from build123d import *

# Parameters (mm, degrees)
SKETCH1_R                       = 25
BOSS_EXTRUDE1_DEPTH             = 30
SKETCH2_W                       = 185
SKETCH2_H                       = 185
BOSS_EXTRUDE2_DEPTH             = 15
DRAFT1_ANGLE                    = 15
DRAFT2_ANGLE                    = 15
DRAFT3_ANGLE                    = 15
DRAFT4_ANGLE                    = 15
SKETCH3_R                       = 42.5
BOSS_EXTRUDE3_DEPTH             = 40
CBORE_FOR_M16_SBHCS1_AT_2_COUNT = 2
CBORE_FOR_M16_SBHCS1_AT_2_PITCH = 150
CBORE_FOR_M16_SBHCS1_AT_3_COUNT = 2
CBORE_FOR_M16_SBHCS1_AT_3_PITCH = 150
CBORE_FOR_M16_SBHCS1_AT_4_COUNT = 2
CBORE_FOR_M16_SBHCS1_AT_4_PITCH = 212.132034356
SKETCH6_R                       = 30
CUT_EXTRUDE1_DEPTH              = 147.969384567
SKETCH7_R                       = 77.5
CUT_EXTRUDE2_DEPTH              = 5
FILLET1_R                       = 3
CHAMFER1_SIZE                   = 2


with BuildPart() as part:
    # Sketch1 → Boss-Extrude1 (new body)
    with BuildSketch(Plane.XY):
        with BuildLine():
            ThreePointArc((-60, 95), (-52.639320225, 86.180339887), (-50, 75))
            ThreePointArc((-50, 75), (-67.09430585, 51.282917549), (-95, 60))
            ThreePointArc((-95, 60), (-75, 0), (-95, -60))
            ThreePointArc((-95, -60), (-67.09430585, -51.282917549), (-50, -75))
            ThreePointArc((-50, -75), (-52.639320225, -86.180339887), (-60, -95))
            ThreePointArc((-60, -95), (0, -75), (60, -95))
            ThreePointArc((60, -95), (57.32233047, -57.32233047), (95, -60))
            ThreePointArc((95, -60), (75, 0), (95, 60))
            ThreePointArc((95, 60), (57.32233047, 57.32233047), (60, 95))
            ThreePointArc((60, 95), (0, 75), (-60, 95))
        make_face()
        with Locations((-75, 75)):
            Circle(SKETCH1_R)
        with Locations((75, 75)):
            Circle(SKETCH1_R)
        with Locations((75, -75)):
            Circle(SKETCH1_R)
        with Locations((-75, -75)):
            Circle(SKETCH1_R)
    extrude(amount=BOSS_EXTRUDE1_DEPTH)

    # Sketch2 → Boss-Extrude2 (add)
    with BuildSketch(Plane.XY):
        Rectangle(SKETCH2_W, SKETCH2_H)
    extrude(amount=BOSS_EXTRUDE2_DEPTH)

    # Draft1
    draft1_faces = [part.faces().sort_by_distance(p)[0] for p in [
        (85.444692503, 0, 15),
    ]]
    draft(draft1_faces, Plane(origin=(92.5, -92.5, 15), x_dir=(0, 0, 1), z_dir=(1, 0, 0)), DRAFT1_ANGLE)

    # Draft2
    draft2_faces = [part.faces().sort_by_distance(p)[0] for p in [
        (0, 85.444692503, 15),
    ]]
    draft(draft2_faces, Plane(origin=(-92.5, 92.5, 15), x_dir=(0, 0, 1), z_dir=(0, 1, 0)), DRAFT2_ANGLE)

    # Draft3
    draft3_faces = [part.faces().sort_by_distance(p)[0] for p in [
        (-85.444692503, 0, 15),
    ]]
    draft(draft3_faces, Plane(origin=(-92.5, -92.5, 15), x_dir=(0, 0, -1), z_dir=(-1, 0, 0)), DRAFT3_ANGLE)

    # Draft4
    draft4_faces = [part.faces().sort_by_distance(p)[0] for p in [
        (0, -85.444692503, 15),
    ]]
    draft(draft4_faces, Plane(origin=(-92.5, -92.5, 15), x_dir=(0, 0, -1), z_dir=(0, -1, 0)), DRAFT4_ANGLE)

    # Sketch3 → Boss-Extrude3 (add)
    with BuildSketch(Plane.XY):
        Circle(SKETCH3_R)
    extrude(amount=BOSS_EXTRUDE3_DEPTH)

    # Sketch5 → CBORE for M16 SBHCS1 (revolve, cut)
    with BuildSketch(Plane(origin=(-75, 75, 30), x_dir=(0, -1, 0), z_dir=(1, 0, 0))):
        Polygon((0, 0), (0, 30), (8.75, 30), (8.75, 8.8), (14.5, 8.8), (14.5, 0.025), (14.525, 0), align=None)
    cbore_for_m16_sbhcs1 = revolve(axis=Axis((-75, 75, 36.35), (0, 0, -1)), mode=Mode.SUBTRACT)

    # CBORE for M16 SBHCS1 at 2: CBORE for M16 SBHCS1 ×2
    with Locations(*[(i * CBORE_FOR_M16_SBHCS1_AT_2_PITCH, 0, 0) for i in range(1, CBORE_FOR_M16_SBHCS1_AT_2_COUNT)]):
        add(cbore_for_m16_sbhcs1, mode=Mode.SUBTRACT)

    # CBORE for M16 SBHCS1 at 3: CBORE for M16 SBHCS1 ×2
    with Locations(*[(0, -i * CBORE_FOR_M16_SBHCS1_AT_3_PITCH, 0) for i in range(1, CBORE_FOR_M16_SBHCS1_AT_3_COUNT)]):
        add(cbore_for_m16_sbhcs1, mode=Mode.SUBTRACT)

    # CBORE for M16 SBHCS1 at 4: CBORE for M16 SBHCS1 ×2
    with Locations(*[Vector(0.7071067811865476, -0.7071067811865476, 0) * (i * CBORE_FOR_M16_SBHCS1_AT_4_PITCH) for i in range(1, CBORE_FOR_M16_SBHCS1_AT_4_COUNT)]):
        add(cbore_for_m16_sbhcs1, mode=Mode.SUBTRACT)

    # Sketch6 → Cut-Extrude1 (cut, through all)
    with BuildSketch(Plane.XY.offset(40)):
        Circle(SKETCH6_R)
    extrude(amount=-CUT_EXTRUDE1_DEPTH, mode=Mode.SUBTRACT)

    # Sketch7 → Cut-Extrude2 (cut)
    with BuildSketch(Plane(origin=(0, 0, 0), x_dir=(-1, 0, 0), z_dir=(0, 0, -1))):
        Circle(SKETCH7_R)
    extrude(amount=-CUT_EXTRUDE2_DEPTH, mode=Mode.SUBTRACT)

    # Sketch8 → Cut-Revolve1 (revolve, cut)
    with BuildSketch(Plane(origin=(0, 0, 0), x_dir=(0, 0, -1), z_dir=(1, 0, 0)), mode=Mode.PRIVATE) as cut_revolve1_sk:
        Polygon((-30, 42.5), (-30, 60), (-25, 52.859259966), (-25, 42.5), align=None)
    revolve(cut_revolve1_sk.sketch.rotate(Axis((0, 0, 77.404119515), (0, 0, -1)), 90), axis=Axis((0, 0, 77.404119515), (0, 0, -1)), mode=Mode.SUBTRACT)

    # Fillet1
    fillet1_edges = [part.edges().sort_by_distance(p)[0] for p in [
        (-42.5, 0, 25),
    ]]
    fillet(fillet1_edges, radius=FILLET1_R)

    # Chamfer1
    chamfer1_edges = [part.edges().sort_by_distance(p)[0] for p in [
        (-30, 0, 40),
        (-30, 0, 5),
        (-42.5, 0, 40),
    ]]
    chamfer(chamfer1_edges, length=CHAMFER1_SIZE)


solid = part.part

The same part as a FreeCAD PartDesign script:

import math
import FreeCAD as App
import Part
import Sketcher

V = App.Vector
Q = App.Units.Quantity


def edges_at(feature, points):
    """Names of the edges that pass closest to the given points."""
    edges = feature.Shape.Edges
    near = lambda p: min(range(len(edges)), key=lambda i: edges[i].distToShape(Part.Vertex(*p))[0])
    return sorted({f"Edge{near(p) + 1}" for p in points})


def faces_at(feature, points):
    """Names of the faces that lie closest to the given points."""
    faces = feature.Shape.Faces
    near = lambda p: min(range(len(faces)), key=lambda i: faces[i].distToShape(Part.Vertex(*p))[0])
    return sorted({f"Face{near(p) + 1}" for p in points})


def add_polygon(sketch, points):
    """Adds a closed chain of lines whose ends are joined by coincident constraints."""
    first, n = sketch.GeometryCount, len(points)
    for a, b in zip(points, points[1:] + points[:1]):
        sketch.addGeometry(Part.LineSegment(App.Vector(*a, 0), App.Vector(*b, 0)), False)
    for i in range(n):
        sketch.addConstraint(Sketcher.Constraint("Coincident", first + i, 2, first + (i + 1) % n, 1))

doc = App.newDocument("Part")
body = doc.addObject("PartDesign::Body", "Body")

sketch1 = body.newObject("Sketcher::SketchObject", "Sketch")
sketch1.AttachmentSupport = (doc.getObject("XY_Plane"), [""])
sketch1.MapMode = "FlatFace"
sketch1.addGeometry(Part.ArcOfCircle(Part.Circle(V(-175, 0, 0), V(0, 0, 1), 100), math.radians(-37), math.radians(37)), False)
sketch1.addGeometry(Part.ArcOfCircle(Part.Circle(V(-75, -75, 0), V(0, 0, 1), 25), math.radians(143), math.radians(307)), False)
sketch1.addGeometry(Part.ArcOfCircle(Part.Circle(V(0, -175, 0), V(0, 0, 1), 100), math.radians(53), math.radians(127)), False)
sketch1.addGeometry(Part.ArcOfCircle(Part.Circle(V(75, -75, 0), V(0, 0, 1), 25), math.radians(-127), math.radians(37)), False)
sketch1.addGeometry(Part.ArcOfCircle(Part.Circle(V(175, 0, 0), V(0, 0, 1), 100), math.radians(143), math.radians(217)), False)
sketch1.addGeometry(Part.ArcOfCircle(Part.Circle(V(75, 75, 0), V(0, 0, 1), 25), math.radians(-37), math.radians(127)), False)
sketch1.addGeometry(Part.ArcOfCircle(Part.Circle(V(0, 175, 0), V(0, 0, 1), 100), math.radians(-127), math.radians(-53)), False)
sketch1.addGeometry(Part.ArcOfCircle(Part.Circle(V(-75, 75, 0), V(0, 0, 1), 25), math.radians(53), math.radians(217)), False)
sketch1.addConstraint(Sketcher.Constraint("Tangent", 0, 1, 1, 1))
sketch1.addConstraint(Sketcher.Constraint("Tangent", 1, 2, 2, 2))
sketch1.addConstraint(Sketcher.Constraint("Tangent", 2, 1, 3, 1))
sketch1.addConstraint(Sketcher.Constraint("Tangent", 3, 2, 4, 2))
sketch1.addConstraint(Sketcher.Constraint("Tangent", 4, 1, 5, 1))
sketch1.addConstraint(Sketcher.Constraint("Tangent", 5, 2, 6, 2))
sketch1.addConstraint(Sketcher.Constraint("Tangent", 6, 1, 7, 1))
sketch1.addConstraint(Sketcher.Constraint("Tangent", 7, 2, 0, 2))
sketch1.addConstraint(Sketcher.Constraint("Equal", 0, 2))
sketch1.addConstraint(Sketcher.Constraint("Equal", 1, 3))
sketch1.addConstraint(Sketcher.Constraint("Equal", 2, 4))
sketch1.addConstraint(Sketcher.Constraint("Equal", 3, 5))
sketch1.addConstraint(Sketcher.Constraint("Equal", 4, 6))
sketch1.addConstraint(Sketcher.Constraint("Equal", 5, 7))
sketch1.addConstraint(Sketcher.Constraint("Symmetric", 0, 3, 4, 3, -1, 1))
sketch1.addConstraint(Sketcher.Constraint("Symmetric", 2, 3, 6, 3, -1, 1))
sketch1.addConstraint(Sketcher.Constraint("Symmetric", 1, 3, 3, 3, -2))
sketch1.addConstraint(Sketcher.Constraint("Radius", 0, 100.0))
sketch1.addConstraint(Sketcher.Constraint("Radius", 1, 25.0))
sketch1.addConstraint(Sketcher.Constraint("DistanceX", 0, 3, -1, 1, 175.0))
sketch1.addConstraint(Sketcher.Constraint("DistanceX", 1, 3, -1, 1, 75.0))
pad1 = body.newObject("PartDesign::Pad", "Pad")
pad1.Profile = sketch1
pad1.Length = 30

sketch2 = body.newObject("Sketcher::SketchObject", "Sketch001")
sketch2.AttachmentSupport = (doc.getObject("XY_Plane"), [""])
sketch2.MapMode = "FlatFace"
add_polygon(sketch2, [(-92, 92), (-92, -92), (92, -92), (92, 92)])
sketch2.addConstraint(Sketcher.Constraint("Vertical", 0))
sketch2.addConstraint(Sketcher.Constraint("Horizontal", 1))
sketch2.addConstraint(Sketcher.Constraint("Vertical", 2))
sketch2.addConstraint(Sketcher.Constraint("Horizontal", 3))
sketch2.addConstraint(Sketcher.Constraint("Symmetric", 0, 2, 2, 2, -1, 1))
sketch2.addConstraint(Sketcher.Constraint("Equal", 3, 0))
sketch2.addConstraint(Sketcher.Constraint("DistanceX", 1, 1, 1, 2, 185.0))
pad2 = body.newObject("PartDesign::Pad", "Pad001")
pad2.Profile = sketch2
pad2.Length = 15
doc.recompute()

datumplane = body.newObject("PartDesign::Plane", "DatumPlane")
datumplane.AttachmentSupport = (doc.getObject("YZ_Plane"), [""])
datumplane.MapMode = "FlatFace"
datumplane.AttachmentOffset = App.Placement(V(0, 0, 92.5), App.Rotation())
draft = body.newObject("PartDesign::Draft", "Draft")
draft.Base = (pad2, faces_at(pad2, [(83.75, 0, 15)]))
draft.NeutralPlane = (datumplane, [""])
draft.Angle = 15
draft.Reversed = False
doc.recompute()

datumplane2 = body.newObject("PartDesign::Plane", "DatumPlane001")
datumplane2.AttachmentSupport = (doc.getObject("XZ_Plane"), [""])
datumplane2.MapMode = "FlatFace"
datumplane2.AttachmentOffset = App.Placement(V(0, 0, -92.5), App.Rotation())
draft2 = body.newObject("PartDesign::Draft", "Draft001")
draft2.Base = (draft, faces_at(draft, [(0, 83.75, 15)]))
draft2.NeutralPlane = (datumplane2, [""])
draft2.Angle = 15
draft2.Reversed = True
doc.recompute()

datumplane3 = body.newObject("PartDesign::Plane", "DatumPlane002")
datumplane3.AttachmentSupport = (doc.getObject("YZ_Plane"), [""])
datumplane3.MapMode = "FlatFace"
datumplane3.AttachmentOffset = App.Placement(V(0, 0, -92.5), App.Rotation())
draft3 = body.newObject("PartDesign::Draft", "Draft002")
draft3.Base = (draft2, faces_at(draft2, [(-83.75, 0, 15)]))
draft3.NeutralPlane = (datumplane3, [""])
draft3.Angle = 15
draft3.Reversed = True
doc.recompute()

datumplane4 = body.newObject("PartDesign::Plane", "DatumPlane003")
datumplane4.AttachmentSupport = (doc.getObject("XZ_Plane"), [""])
datumplane4.MapMode = "FlatFace"
datumplane4.AttachmentOffset = App.Placement(V(0, 0, 92.5), App.Rotation())
draft4 = body.newObject("PartDesign::Draft", "Draft003")
draft4.Base = (draft3, faces_at(draft3, [(0, -83.75, 15)]))
draft4.NeutralPlane = (datumplane4, [""])
draft4.Angle = 15
draft4.Reversed = False

sketch3 = body.newObject("Sketcher::SketchObject", "Sketch002")
sketch3.AttachmentSupport = (doc.getObject("XY_Plane"), [""])
sketch3.MapMode = "FlatFace"
sketch3.addGeometry(Part.Circle(V(0, 0, 0), V(0, 0, 1), 42), False)
sketch3.addConstraint(Sketcher.Constraint("Coincident", 0, 3, -1, 1))
sketch3.addConstraint(Sketcher.Constraint("Diameter", 0, 85.0))
pad3 = body.newObject("PartDesign::Pad", "Pad002")
pad3.Profile = sketch3
pad3.Length = 40

sketch4 = body.newObject("Sketcher::SketchObject", "Sketch003")
sketch4.AttachmentSupport = (doc.getObject("YZ_Plane"), [""])
sketch4.MapMode = "FlatFace"
sketch4.AttachmentOffset = App.Placement(V(0, 0, -75), App.Rotation())
add_polygon(sketch4, [(75, 0), (75, 30), (60.475, 30), (60.5, 29.975), (60.5, 21.2), (66.25, 21.2), (66.25, 0)])
sketch4.addGeometry(Part.LineSegment(V(75, 30, 0), V(75, 0, 0)), True)
sketch4.addConstraint(Sketcher.Constraint("Vertical", 0))
sketch4.addConstraint(Sketcher.Constraint("Horizontal", 1))
sketch4.addConstraint(Sketcher.Constraint("Vertical", 3))
sketch4.addConstraint(Sketcher.Constraint("Horizontal", 4))
sketch4.addConstraint(Sketcher.Constraint("Vertical", 5))
sketch4.addConstraint(Sketcher.Constraint("Horizontal", 6))
sketch4.addConstraint(Sketcher.Constraint("Vertical", 7))
sketch4.addConstraint(Sketcher.Constraint("Coincident", 7, 1, 0, 2))
sketch4.addConstraint(Sketcher.Constraint("PointOnObject", 5, 2, -1))
sketch4.addConstraint(Sketcher.Constraint("PointOnObject", 7, 2, -1))
sketch4.addConstraint(Sketcher.Constraint("DistanceY", 0, 1, 0, 2, 30.0))
sketch4.addConstraint(Sketcher.Constraint("Angle", 2, Q("-45 deg")))
sketch4.addConstraint(Sketcher.Constraint("DistanceY", 5, 2, 5, 1, 21.2))
sketch4.addConstraint(Sketcher.Constraint("DistanceX", -1, 1, 0, 2, 75.0))
sketch4.addConstraint(Sketcher.Constraint("DistanceX", 4, 1, 4, 2, 5.75))
sketch4.addConstraint(Sketcher.Constraint("DistanceX", 6, 1, 6, 2, 8.75))
sketch4.addConstraint(Sketcher.Constraint("DistanceX", 1, 2, 1, 1, 14.525))
groove = body.newObject("PartDesign::Groove", "Groove")
groove.Profile = sketch4
groove.ReferenceAxis = (sketch4, ["Axis0"])
groove.Angle = 360
doc.recompute()

linearpattern = body.newObject("PartDesign::LinearPattern", "LinearPattern")
linearpattern.Originals = [groove]
linearpattern.Direction = (doc.getObject("X_Axis"), [""])
linearpattern.Mode = "offset"
linearpattern.Offset = 150
linearpattern.Occurrences = 2
body.Tip = linearpattern
doc.recompute()

linearpattern2 = body.newObject("PartDesign::LinearPattern", "LinearPattern001")
linearpattern2.Originals = [groove]
linearpattern2.Direction = (doc.getObject("Y_Axis"), [""])
linearpattern2.Mode = "offset"
linearpattern2.Offset = 150
linearpattern2.Occurrences = 2
linearpattern2.Reversed = True
body.Tip = linearpattern2
doc.recompute()

datumline = body.newObject("PartDesign::Line", "DatumLine")
datumline.Placement = App.Placement(V(0, 0, 0), App.Rotation(V(0, 0, 1), V(0.707106781, -0.707106781, 0)))
linearpattern3 = body.newObject("PartDesign::LinearPattern", "LinearPattern002")
linearpattern3.Originals = [groove]
linearpattern3.Direction = (datumline, [""])
linearpattern3.Mode = "offset"
linearpattern3.Offset = 212.132034
linearpattern3.Occurrences = 2
body.Tip = linearpattern3

sketch5 = body.newObject("Sketcher::SketchObject", "Sketch004")
sketch5.AttachmentSupport = (doc.getObject("XY_Plane"), [""])
sketch5.MapMode = "FlatFace"
sketch5.AttachmentOffset = App.Placement(V(0, 0, 40), App.Rotation())
sketch5.addGeometry(Part.Circle(V(0, 0, 0), V(0, 0, 1), 30), False)
sketch5.addConstraint(Sketcher.Constraint("Coincident", 0, 3, -1, 1))
sketch5.addConstraint(Sketcher.Constraint("Diameter", 0, 60.0))
pocket1 = body.newObject("PartDesign::Pocket", "Pocket")
pocket1.Profile = sketch5
pocket1.Type = "ThroughAll"

sketch6 = body.newObject("Sketcher::SketchObject", "Sketch005")
sketch6.AttachmentSupport = (doc.getObject("XY_Plane"), [""])
sketch6.MapMode = "FlatFace"
sketch6.addGeometry(Part.Circle(V(0, 0, 0), V(0, 0, 1), 78), False)
sketch6.addConstraint(Sketcher.Constraint("Coincident", 0, 3, -1, 1))
sketch6.addConstraint(Sketcher.Constraint("Diameter", 0, 155.0))
pocket2 = body.newObject("PartDesign::Pocket", "Pocket001")
pocket2.Profile = sketch6
pocket2.Length = 5
pocket2.Reversed = True

sketch7 = body.newObject("Sketcher::SketchObject", "Sketch006")
sketch7.AttachmentSupport = (doc.getObject("YZ_Plane"), [""])
sketch7.MapMode = "FlatFace"
add_polygon(sketch7, [(60, 30), (42, 30), (42, 25), (53, 25)])
sketch7.addConstraint(Sketcher.Constraint("Horizontal", 0))
sketch7.addConstraint(Sketcher.Constraint("Vertical", 1))
sketch7.addConstraint(Sketcher.Constraint("Horizontal", 2))
sketch7.addConstraint(Sketcher.Constraint("DistanceY", 1, 2, 1, 1, 5.0))
sketch7.addConstraint(Sketcher.Constraint("Angle", 3, Q("35 deg")))
sketch7.addConstraint(Sketcher.Constraint("DistanceX", 0, 2, 0, 1, 17.5))
sketch7.addConstraint(Sketcher.Constraint("DistanceY", -1, 1, 0, 2, 30.0))
sketch7.addConstraint(Sketcher.Constraint("DistanceX", -1, 1, 3, 2, 60.0))
groove2 = body.newObject("PartDesign::Groove", "Groove001")
groove2.Profile = sketch7
groove2.ReferenceAxis = (sketch7, ["V_Axis"])
groove2.Angle = 360
doc.recompute()

fillet = body.newObject("PartDesign::Fillet", "Fillet")
fillet.Base = (groove2, edges_at(groove2, [(-42.5, 0, 25)]))
fillet.Radius = 3
doc.recompute()

chamfer = body.newObject("PartDesign::Chamfer", "Chamfer")
chamfer.Base = (fillet, edges_at(fillet, [(-30, 0, 40), (-30, 0, 5), (-42.5, 0, 40)]))
chamfer.Size = 2

doc.recompute()
